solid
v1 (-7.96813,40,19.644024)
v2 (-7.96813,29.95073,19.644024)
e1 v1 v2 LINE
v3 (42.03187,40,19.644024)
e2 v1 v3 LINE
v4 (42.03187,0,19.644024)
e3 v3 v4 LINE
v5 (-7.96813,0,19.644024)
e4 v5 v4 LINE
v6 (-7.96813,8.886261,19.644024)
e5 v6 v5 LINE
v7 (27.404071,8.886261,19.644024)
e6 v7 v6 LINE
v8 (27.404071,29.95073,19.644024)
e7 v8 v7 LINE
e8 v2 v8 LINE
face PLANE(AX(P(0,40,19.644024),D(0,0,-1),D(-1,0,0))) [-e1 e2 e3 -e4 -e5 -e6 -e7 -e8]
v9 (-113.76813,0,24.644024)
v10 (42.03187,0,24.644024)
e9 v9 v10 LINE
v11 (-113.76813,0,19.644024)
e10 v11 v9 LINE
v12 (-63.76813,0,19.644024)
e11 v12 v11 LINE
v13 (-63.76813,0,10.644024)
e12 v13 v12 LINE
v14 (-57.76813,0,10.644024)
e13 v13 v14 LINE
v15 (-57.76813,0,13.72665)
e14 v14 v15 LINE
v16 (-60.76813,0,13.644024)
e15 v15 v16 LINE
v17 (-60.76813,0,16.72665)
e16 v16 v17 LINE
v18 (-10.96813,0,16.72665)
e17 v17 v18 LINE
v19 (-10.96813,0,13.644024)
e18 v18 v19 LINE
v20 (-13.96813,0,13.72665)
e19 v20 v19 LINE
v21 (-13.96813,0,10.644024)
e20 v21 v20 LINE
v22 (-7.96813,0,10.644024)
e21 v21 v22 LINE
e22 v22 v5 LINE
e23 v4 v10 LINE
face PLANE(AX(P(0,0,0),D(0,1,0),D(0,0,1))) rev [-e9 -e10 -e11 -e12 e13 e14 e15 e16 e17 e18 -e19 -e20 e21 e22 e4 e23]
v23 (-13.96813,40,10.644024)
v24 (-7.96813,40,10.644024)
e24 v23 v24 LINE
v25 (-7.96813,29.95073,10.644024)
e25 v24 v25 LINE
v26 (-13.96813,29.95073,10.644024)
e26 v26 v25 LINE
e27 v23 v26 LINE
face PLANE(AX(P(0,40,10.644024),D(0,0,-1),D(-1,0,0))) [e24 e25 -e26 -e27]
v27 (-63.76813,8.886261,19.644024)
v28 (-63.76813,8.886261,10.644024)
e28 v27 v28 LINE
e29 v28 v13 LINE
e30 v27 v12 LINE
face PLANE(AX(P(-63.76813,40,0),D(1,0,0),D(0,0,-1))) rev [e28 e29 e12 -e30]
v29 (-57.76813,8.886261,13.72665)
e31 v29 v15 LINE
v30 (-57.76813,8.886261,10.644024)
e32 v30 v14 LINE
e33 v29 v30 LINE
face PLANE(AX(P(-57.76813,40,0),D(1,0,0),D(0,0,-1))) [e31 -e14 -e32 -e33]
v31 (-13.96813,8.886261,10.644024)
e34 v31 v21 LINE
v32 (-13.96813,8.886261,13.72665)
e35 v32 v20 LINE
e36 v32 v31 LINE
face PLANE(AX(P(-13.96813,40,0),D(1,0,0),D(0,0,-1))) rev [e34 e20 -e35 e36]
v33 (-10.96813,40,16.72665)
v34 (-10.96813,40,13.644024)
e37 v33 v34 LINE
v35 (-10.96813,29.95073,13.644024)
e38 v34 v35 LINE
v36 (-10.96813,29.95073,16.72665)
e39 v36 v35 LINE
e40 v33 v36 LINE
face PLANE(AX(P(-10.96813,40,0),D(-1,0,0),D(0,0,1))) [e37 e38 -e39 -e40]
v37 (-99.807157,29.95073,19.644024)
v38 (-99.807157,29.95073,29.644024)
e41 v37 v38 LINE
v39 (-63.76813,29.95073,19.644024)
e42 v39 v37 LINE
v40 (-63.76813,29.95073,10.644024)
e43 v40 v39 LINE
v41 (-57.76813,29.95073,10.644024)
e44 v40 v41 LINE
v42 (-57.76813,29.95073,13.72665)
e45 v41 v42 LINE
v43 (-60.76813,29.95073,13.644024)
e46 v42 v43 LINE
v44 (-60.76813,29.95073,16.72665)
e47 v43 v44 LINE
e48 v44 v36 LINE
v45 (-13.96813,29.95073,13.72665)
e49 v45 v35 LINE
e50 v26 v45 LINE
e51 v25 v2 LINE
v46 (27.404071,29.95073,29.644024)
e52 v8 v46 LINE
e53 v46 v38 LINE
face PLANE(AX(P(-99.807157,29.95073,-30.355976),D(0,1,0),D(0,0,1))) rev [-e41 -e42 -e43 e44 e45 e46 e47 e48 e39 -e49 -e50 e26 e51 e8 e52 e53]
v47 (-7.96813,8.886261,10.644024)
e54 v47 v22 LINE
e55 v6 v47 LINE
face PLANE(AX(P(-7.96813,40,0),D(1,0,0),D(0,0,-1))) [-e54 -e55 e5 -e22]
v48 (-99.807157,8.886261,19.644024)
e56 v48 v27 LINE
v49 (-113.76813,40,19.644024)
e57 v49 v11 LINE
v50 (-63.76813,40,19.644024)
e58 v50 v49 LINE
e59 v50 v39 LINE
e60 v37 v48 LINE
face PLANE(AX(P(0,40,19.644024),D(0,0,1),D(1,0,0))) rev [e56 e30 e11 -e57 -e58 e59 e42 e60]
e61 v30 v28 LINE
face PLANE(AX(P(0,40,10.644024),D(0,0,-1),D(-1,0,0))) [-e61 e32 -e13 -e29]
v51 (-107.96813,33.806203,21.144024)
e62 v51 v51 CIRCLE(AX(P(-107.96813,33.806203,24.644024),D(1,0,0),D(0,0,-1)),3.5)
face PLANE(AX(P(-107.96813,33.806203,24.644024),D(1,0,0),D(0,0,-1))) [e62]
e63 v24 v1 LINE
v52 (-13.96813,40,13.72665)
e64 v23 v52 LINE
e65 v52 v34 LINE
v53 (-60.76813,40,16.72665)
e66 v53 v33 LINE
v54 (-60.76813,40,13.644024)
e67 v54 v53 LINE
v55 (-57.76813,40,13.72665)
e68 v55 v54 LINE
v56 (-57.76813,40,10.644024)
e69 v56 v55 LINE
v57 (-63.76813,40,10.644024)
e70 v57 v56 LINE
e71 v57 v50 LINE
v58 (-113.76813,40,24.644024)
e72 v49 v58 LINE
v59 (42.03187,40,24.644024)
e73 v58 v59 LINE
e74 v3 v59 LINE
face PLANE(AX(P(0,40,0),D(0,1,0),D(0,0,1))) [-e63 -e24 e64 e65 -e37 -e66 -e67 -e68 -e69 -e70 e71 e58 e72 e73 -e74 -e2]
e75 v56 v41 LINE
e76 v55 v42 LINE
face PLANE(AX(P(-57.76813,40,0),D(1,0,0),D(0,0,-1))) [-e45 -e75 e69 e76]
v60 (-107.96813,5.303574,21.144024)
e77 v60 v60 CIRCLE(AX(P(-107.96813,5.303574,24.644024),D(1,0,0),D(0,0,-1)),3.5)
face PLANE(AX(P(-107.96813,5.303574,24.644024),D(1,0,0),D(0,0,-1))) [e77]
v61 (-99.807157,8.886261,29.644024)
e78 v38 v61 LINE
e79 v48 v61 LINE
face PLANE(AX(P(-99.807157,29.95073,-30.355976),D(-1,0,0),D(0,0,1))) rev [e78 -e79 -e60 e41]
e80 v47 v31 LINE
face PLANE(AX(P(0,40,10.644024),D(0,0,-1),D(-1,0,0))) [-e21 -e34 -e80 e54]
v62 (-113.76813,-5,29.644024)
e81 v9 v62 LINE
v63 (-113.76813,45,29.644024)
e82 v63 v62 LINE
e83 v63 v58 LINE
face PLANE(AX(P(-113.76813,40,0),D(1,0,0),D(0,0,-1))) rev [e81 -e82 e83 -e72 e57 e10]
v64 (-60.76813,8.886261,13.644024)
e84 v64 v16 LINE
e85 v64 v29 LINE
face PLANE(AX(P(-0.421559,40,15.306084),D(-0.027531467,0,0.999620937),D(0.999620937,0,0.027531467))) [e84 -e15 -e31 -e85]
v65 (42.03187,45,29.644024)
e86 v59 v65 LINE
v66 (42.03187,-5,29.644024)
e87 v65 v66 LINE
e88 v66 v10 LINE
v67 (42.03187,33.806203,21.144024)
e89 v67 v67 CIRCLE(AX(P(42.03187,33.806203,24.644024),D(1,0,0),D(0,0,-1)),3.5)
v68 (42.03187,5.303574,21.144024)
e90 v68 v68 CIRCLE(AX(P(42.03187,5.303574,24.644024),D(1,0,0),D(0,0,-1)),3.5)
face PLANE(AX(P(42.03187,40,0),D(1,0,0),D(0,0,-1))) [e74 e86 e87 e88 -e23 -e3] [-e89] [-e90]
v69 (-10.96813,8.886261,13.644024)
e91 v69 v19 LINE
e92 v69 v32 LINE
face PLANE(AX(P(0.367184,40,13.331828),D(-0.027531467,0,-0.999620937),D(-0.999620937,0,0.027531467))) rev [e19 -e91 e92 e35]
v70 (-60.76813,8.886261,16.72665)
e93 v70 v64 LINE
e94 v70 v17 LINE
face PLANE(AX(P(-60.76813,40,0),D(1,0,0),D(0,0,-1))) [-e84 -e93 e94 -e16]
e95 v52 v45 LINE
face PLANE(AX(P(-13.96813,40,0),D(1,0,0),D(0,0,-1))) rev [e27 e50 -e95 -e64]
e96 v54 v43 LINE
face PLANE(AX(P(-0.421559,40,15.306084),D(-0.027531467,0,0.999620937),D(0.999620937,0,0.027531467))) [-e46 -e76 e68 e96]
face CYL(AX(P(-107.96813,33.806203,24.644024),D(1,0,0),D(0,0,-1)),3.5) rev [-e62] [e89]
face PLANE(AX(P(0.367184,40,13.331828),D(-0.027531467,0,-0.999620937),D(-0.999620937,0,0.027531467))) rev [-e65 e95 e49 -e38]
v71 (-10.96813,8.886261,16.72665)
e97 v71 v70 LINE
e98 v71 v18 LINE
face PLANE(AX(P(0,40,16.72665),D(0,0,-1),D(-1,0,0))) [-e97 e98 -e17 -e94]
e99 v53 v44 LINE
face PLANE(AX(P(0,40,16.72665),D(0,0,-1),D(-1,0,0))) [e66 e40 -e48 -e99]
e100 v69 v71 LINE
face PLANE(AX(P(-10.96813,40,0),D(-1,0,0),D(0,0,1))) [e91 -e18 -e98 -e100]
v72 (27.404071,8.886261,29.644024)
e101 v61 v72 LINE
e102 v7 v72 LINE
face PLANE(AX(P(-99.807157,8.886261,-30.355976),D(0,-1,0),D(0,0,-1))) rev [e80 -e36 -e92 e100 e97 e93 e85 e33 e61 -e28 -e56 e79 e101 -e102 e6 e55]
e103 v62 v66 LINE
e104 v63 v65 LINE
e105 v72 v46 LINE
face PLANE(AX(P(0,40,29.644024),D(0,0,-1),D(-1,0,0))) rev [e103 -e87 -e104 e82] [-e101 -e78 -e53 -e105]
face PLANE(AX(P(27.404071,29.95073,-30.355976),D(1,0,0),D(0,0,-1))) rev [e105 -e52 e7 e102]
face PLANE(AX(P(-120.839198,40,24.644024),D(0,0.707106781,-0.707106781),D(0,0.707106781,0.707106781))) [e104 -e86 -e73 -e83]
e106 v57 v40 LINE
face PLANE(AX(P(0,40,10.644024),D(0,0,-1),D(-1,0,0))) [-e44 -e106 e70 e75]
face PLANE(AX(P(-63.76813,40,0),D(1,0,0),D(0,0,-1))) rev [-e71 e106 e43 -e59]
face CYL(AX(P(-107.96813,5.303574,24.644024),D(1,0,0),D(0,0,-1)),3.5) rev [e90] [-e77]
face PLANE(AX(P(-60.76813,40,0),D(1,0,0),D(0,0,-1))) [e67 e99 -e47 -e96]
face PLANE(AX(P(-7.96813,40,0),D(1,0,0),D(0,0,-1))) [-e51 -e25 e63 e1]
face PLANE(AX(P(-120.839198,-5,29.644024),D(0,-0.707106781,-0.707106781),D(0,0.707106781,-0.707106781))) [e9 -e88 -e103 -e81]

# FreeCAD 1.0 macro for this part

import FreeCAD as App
import Part
import Sketcher
from FreeCAD import Vector


def add_polygon(sketch, points):
    """Adds a closed chain of lines whose ends are joined by coincident constraints."""
    first, n = sketch.GeometryCount, len(points)
    for a, b in zip(points, points[1:] + points[:1]):
        sketch.addGeometry(Part.LineSegment(App.Vector(*a, 0), App.Vector(*b, 0)), False)
    for i in range(n):
        sketch.addConstraint(Sketcher.Constraint("Coincident", first + i, 2, first + (i + 1) % n, 1))

doc = App.newDocument("Part")
params = doc.addObject("Spreadsheet::Sheet", "Params")
for row, (alias, value) in enumerate([
    ("sketch1_width", "50 mm"),
    ("sketch1_width2", "6 mm"),
    ("sketch1_height", "9 mm"),
    ("sketch1_height2", "10 mm"),
    ("sketch1_width3", "155.8 mm"),
    ("pad1_length", "40 mm"),
    ("pocket1_length", "60 mm"),
    ("sketch3_width", "5 mm"),
    ("pad2_length", "155.8 mm"),
    ("sketch4_diameter", "7 mm"),
    ("pocket2_length", "150 mm"),
], start=1):
    params.set(f"A{row}", alias)
    params.set(f"B{row}", "=" + value)
    params.setAlias(f"B{row}", alias)

body = doc.addObject("PartDesign::Body", "Body")

# Sketch on XZ plane
sketch1 = body.newObject("Sketcher::SketchObject", "Sketch")
sketch1.AttachmentSupport = (doc.getObject("XZ_Plane"), [""])
sketch1.MapMode = "FlatFace"
add_polygon(sketch1, [(-63.8, 10.6), (-63.8, 19.6), (-113.8, 19.6), (-113.8, 29.6), (42, 29.6), (42, 19.6), (-8, 19.6), (-8, 10.6), (-14, 10.6), (-14, 13.7), (-11, 13.6), (-11, 16.7), (-60.8, 16.7), (-60.8, 13.6), (-57.8, 13.7), (-57.8, 10.6)])  # lines 0-15
sketch1.addConstraint(Sketcher.Constraint("Vertical", 0))
sketch1.addConstraint(Sketcher.Constraint("Horizontal", 1))
sketch1.addConstraint(Sketcher.Constraint("Vertical", 2))
sketch1.addConstraint(Sketcher.Constraint("Horizontal", 3))
sketch1.addConstraint(Sketcher.Constraint("Vertical", 4))
sketch1.addConstraint(Sketcher.Constraint("Horizontal", 5))
sketch1.addConstraint(Sketcher.Constraint("Vertical", 6))
sketch1.addConstraint(Sketcher.Constraint("Horizontal", 7))
sketch1.addConstraint(Sketcher.Constraint("Vertical", 8))
sketch1.addConstraint(Sketcher.Constraint("Vertical", 10))
sketch1.addConstraint(Sketcher.Constraint("Horizontal", 11))
sketch1.addConstraint(Sketcher.Constraint("Vertical", 12))
sketch1.addConstraint(Sketcher.Constraint("Vertical", 14))
sketch1.addConstraint(Sketcher.Constraint("Horizontal", 15))
sketch1.addConstraint(Sketcher.Constraint("Horizontal", 1, 2, 4, 2))
sketch1.addConstraint(Sketcher.Constraint("Horizontal", 9, 2, 12, 2))
sketch1.addConstraint(Sketcher.Constraint("Horizontal", 8, 2, 13, 2))
sketch1.addConstraint(Sketcher.Constraint("Horizontal", 7, 2, 14, 2))
sketch1.addConstraint(Sketcher.Constraint("Equal", 1, 5))
sketch1.addConstraint(Sketcher.Constraint("Equal", 7, 15))
sketch1.addConstraint(Sketcher.Constraint("Equal", 8, 10))
sketch1.addConstraint(Sketcher.Constraint("Equal", 9, 13))
sketch1.addConstraint(Sketcher.Constraint("DistanceX", 1, 2, 1, 1, 50.0))
sketch1.addConstraint(Sketcher.Constraint("DistanceX", 7, 2, 7, 1, 6.0))
sketch1.addConstraint(Sketcher.Constraint("DistanceY", 0, 1, 0, 2, 9.0))
sketch1.addConstraint(Sketcher.Constraint("DistanceY", 2, 1, 2, 2, 10.0))
sketch1.addConstraint(Sketcher.Constraint("DistanceX", 3, 1, 3, 2, 155.8))
sketch1.addConstraint(Sketcher.Constraint("DistanceX", 11, 2, 11, 1, 49.8))
sketch1.addConstraint(Sketcher.Constraint("DistanceY", 6, 2, 9, 2, 3.0))
sketch1.addConstraint(Sketcher.Constraint("DistanceY", 8, 1, 8, 2, 3.082626))
sketch1.addConstraint(Sketcher.Constraint("DistanceX", 0, 2, -1, 1, 63.76813))
sketch1.addConstraint(Sketcher.Constraint("DistanceY", -1, 1, 8, 2, 13.72665))
sketch1.setExpression("Constraints[38]", "Params.sketch1_width")
sketch1.setExpression("Constraints[39]", "Params.sketch1_width2")
sketch1.setExpression("Constraints[40]", "Params.sketch1_height")
sketch1.setExpression("Constraints[41]", "Params.sketch1_height2")
sketch1.setExpression("Constraints[42]", "Params.sketch1_width3")
pad1 = body.newObject("PartDesign::Pad", "Pad")
pad1.Profile = sketch1
pad1.setExpression("Length", "Params.pad1_length")
pad1.Reversed = True

# Sketch on XY plane
sketch2 = body.newObject("Sketcher::SketchObject", "Sketch001")
sketch2.AttachmentSupport = (doc.getObject("XY_Plane"), [""])
sketch2.MapMode = "FlatFace"
sketch2.AttachmentOffset = App.Placement(Vector(0, 0, 29.644024), App.Rotation())
add_polygon(sketch2, [(-100, 30), (-100, 9), (27, 9), (27, 30)])  # lines 0-3
sketch2.addConstraint(Sketcher.Constraint("Vertical", 0))
sketch2.addConstraint(Sketcher.Constraint("Horizontal", 1))
sketch2.addConstraint(Sketcher.Constraint("Vertical", 2))
sketch2.addConstraint(Sketcher.Constraint("Horizontal", 3))
sketch2.addConstraint(Sketcher.Constraint("DistanceX", 1, 1, 1, 2, 127.211228))
sketch2.addConstraint(Sketcher.Constraint("DistanceY", 0, 2, 0, 1, 21.064469))
sketch2.addConstraint(Sketcher.Constraint("DistanceY", -1, 1, 0, 2, 8.886261))
sketch2.addConstraint(Sketcher.Constraint("DistanceX", -1, 1, 1, 2, 27.404071))
pocket1 = body.newObject("PartDesign::Pocket", "Pocket")
pocket1.Profile = sketch2
pocket1.setExpression("Length", "Params.pocket1_length")

# Sketch on YZ plane
sketch3 = body.newObject("Sketcher::SketchObject", "Sketch002")
sketch3.AttachmentSupport = (doc.getObject("YZ_Plane"), [""])
sketch3.MapMode = "FlatFace"
sketch3.AttachmentOffset = App.Placement(Vector(0, 0, 42.03187), App.Rotation())
add_polygon(sketch3, [(40, 30), (40, 25), (45, 30)])  # lines 0-2
add_polygon(sketch3, [(0, 30), (-5, 30), (0, 25)])  # lines 3-5
sketch3.addConstraint(Sketcher.Constraint("Vertical", 0))
sketch3.addConstraint(Sketcher.Constraint("Horizontal", 2))
sketch3.addConstraint(Sketcher.Constraint("Horizontal", 3))
sketch3.addConstraint(Sketcher.Constraint("Vertical", 5))
sketch3.addConstraint(Sketcher.Constraint("PointOnObject", 4, 2, -2))
sketch3.addConstraint(Sketcher.Constraint("Perpendicular", 1, 4))
sketch3.addConstraint(Sketcher.Constraint("Horizontal", 2, 2, 3, 2))
sketch3.addConstraint(Sketcher.Constraint("Horizontal", 0, 2, 4, 2))
sketch3.addConstraint(Sketcher.Constraint("Equal", 2, 3))
sketch3.addConstraint(Sketcher.Constraint("DistanceX", 2, 2, 2, 1, 5.0))
sketch3.addConstraint(Sketcher.Constraint("DistanceX", -1, 1, 0, 2, 40.0))
sketch3.addConstraint(Sketcher.Constraint("DistanceY", -1, 1, 0, 2, 24.644024))
sketch3.setExpression("Constraints[15]", "Params.sketch3_width")
pad2 = body.newObject("PartDesign::Pad", "Pad001")
pad2.Profile = sketch3
pad2.setExpression("Length", "Params.pad2_length")
pad2.Reversed = True

# Sketch on YZ plane
sketch4 = body.newObject("Sketcher::SketchObject", "Sketch003")
sketch4.AttachmentSupport = (doc.getObject("YZ_Plane"), [""])
sketch4.MapMode = "FlatFace"
sketch4.AttachmentOffset = App.Placement(Vector(0, 0, 42.03187), App.Rotation())
sketch4.addGeometry(Part.Circle(Vector(33.8, 24.6, 0), Vector(0, 0, 1), 3.5), False)
sketch4.addGeometry(Part.Circle(Vector(5.3, 24.6, 0), Vector(0, 0, 1), 3.5), False)
sketch4.addConstraint(Sketcher.Constraint("Equal", 0, 1))
sketch4.addConstraint(Sketcher.Constraint("Horizontal", 0, 3, 1, 3))
sketch4.addConstraint(Sketcher.Constraint("Diameter", 0, 7.0))
sketch4.addConstraint(Sketcher.Constraint("DistanceX", 1, 3, 0, 3, 28.502629))
sketch4.addConstraint(Sketcher.Constraint("DistanceX", -1, 1, 0, 3, 33.806203))
sketch4.addConstraint(Sketcher.Constraint("DistanceY", -1, 1, 0, 3, 24.644024))
sketch4.setExpression("Constraints[2]", "Params.sketch4_diameter")
pocket2 = body.newObject("PartDesign::Pocket", "Pocket001")
pocket2.Profile = sketch4
pocket2.setExpression("Length", "Params.pocket2_length")

doc.recompute()
